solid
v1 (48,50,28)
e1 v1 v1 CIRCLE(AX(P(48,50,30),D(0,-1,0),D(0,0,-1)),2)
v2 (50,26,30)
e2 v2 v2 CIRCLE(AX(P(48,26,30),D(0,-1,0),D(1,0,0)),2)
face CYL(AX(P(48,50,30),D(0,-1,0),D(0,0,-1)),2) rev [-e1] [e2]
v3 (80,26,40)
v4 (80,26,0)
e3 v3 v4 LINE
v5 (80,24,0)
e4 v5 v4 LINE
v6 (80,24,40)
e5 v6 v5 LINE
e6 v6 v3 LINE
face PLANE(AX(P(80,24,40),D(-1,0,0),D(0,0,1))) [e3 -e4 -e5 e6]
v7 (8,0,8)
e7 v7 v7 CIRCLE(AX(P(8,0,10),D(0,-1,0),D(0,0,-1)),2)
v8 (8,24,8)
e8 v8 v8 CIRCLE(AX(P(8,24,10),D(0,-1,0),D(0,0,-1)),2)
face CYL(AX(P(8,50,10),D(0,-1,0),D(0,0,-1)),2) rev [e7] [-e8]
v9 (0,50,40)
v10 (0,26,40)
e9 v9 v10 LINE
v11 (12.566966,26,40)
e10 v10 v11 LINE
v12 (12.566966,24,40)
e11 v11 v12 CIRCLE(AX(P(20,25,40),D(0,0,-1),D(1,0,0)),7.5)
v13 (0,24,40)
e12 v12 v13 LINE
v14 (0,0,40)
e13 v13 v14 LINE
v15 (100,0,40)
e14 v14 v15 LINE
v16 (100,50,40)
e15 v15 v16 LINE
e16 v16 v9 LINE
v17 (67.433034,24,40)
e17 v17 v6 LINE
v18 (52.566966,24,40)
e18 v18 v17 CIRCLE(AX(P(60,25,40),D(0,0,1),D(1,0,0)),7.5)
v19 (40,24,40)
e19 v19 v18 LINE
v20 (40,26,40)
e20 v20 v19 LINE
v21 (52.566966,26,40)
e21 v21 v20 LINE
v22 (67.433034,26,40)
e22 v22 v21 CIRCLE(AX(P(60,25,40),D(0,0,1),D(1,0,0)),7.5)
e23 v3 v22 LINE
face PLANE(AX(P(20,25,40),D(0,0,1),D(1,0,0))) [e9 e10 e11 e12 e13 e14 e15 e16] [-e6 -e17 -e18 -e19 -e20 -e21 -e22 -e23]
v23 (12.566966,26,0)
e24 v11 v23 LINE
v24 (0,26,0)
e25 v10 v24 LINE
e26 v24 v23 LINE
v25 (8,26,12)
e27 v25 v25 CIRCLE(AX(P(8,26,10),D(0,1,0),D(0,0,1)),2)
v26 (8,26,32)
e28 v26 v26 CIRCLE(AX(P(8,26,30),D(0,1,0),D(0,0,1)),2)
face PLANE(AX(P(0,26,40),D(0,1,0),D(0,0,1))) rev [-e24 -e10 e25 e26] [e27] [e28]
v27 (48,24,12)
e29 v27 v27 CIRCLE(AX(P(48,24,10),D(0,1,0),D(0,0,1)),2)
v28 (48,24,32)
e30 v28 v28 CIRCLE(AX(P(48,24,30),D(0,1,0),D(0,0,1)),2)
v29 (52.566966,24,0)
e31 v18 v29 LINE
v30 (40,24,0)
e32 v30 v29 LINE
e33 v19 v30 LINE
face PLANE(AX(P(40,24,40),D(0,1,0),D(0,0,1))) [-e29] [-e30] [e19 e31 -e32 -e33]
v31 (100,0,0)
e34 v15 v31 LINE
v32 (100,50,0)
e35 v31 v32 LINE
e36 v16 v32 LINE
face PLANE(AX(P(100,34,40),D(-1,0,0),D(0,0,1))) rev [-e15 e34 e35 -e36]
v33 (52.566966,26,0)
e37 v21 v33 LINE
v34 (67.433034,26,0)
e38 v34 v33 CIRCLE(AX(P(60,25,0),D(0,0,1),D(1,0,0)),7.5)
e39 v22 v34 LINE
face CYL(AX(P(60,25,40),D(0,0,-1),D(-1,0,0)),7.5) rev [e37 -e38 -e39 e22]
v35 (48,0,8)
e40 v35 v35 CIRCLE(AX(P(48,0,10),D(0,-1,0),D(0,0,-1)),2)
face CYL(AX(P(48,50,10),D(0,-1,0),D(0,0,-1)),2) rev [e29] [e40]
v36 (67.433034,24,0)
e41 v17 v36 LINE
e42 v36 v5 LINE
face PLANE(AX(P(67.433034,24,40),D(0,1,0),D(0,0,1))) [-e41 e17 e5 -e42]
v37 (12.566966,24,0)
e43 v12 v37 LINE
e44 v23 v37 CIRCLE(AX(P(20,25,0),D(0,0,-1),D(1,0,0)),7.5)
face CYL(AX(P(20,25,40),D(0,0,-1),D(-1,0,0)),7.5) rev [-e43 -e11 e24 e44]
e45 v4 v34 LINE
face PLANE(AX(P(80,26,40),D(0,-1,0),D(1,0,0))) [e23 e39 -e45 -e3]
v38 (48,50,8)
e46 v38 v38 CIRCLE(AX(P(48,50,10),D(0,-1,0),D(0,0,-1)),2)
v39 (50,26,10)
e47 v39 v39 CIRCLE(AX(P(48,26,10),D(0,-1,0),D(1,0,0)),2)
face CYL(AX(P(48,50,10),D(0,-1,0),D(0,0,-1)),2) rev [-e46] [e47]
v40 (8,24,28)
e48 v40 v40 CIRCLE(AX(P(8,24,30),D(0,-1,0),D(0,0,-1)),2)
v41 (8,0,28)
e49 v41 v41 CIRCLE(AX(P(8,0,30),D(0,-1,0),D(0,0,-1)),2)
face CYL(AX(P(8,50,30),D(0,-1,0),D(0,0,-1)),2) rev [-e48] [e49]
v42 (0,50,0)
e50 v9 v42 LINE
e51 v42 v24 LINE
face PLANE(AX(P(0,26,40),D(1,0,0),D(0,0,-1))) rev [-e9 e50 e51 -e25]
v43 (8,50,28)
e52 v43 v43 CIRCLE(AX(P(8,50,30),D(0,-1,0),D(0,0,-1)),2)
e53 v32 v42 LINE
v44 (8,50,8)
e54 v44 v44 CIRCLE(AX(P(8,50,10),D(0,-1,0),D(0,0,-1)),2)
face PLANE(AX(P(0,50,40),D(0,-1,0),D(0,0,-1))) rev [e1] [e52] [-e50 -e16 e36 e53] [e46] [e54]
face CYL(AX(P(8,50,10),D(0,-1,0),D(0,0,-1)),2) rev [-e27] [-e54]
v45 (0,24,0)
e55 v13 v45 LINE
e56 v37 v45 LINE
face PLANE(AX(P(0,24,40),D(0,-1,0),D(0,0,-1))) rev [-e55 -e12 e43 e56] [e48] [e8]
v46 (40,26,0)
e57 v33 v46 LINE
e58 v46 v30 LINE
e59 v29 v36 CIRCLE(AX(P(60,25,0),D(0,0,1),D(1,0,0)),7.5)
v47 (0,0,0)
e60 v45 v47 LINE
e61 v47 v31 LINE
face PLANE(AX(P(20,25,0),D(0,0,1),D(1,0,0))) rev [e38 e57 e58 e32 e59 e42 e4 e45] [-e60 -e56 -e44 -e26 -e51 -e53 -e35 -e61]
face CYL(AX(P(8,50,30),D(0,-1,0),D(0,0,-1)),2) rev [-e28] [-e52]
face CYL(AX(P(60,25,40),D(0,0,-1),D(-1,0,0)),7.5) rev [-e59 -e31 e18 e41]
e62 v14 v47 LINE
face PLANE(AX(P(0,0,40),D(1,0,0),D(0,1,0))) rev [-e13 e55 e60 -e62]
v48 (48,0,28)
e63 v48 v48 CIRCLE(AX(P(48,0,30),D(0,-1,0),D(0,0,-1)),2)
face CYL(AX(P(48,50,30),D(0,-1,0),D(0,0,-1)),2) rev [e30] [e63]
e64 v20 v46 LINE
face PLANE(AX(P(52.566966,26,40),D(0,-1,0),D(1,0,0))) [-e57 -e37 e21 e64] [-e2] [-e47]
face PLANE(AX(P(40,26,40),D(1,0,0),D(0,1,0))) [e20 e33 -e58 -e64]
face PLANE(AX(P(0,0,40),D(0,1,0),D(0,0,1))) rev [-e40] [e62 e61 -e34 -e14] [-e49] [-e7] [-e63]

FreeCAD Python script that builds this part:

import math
import FreeCAD as App
import Part
import Sketcher
from FreeCAD import Vector

doc = App.newDocument("Part")
body = doc.addObject("PartDesign::Body", "Body")

# Sketch on XY plane
sketch1 = doc.addObject("Sketcher::SketchObject", "Sketch")
body.addObject(sketch1)
sketch1.AttachmentSupport = (doc.XY_Plane, [""])
sketch1.MapMode = "FlatFace"
sketch1.addGeometry(Part.LineSegment(Vector(0, 0, 0), Vector(100, 0, 0)), False)
sketch1.addGeometry(Part.LineSegment(Vector(100, 0, 0), Vector(100, 50, 0)), False)
sketch1.addGeometry(Part.LineSegment(Vector(100, 50, 0), Vector(0, 50, 0)), False)
sketch1.addGeometry(Part.LineSegment(Vector(0, 50, 0), Vector(0, 26, 0)), False)
sketch1.addGeometry(Part.LineSegment(Vector(0, 26, 0), Vector(12.6, 26, 0)), False)
sketch1.addGeometry(Part.ArcOfCircle(Part.Circle(Vector(20, 25, 0), Vector(0, 0, 1), 7.5), math.radians(-172), math.radians(172)), False)
sketch1.addGeometry(Part.LineSegment(Vector(12.6, 24, 0), Vector(0, 24, 0)), False)
sketch1.addGeometry(Part.LineSegment(Vector(0, 24, 0), Vector(0, 0, 0)), False)
sketch1.addGeometry(Part.LineSegment(Vector(40, 26, 0), Vector(52.6, 26, 0)), False)
sketch1.addGeometry(Part.ArcOfCircle(Part.Circle(Vector(60, 25, 0), Vector(0, 0, 1), 7.5), math.radians(8), math.radians(172)), False)
sketch1.addGeometry(Part.LineSegment(Vector(67.4, 26, 0), Vector(80, 26, 0)), False)
sketch1.addGeometry(Part.LineSegment(Vector(80, 26, 0), Vector(80, 24, 0)), False)
sketch1.addGeometry(Part.LineSegment(Vector(80, 24, 0), Vector(67.4, 24, 0)), False)
sketch1.addGeometry(Part.ArcOfCircle(Part.Circle(Vector(60, 25, 0), Vector(0, 0, 1), 7.5), math.radians(-172), math.radians(-8)), False)
sketch1.addGeometry(Part.LineSegment(Vector(52.6, 24, 0), Vector(40, 24, 0)), False)
sketch1.addGeometry(Part.LineSegment(Vector(40, 24, 0), Vector(40, 26, 0)), False)
sketch1.addConstraint(Sketcher.Constraint("Coincident", 0, 2, 1, 1))
sketch1.addConstraint(Sketcher.Constraint("Coincident", 1, 2, 2, 1))
sketch1.addConstraint(Sketcher.Constraint("Coincident", 2, 2, 3, 1))
sketch1.addConstraint(Sketcher.Constraint("Coincident", 3, 2, 4, 1))
sketch1.addConstraint(Sketcher.Constraint("Coincident", 4, 2, 5, 2))
sketch1.addConstraint(Sketcher.Constraint("Coincident", 5, 1, 6, 1))
sketch1.addConstraint(Sketcher.Constraint("Coincident", 6, 2, 7, 1))
sketch1.addConstraint(Sketcher.Constraint("Coincident", 7, 2, 0, 1))
sketch1.addConstraint(Sketcher.Constraint("Coincident", 8, 2, 9, 2))
sketch1.addConstraint(Sketcher.Constraint("Coincident", 9, 1, 10, 1))
sketch1.addConstraint(Sketcher.Constraint("Coincident", 10, 2, 11, 1))
sketch1.addConstraint(Sketcher.Constraint("Coincident", 11, 2, 12, 1))
sketch1.addConstraint(Sketcher.Constraint("Coincident", 12, 2, 13, 2))
sketch1.addConstraint(Sketcher.Constraint("Coincident", 13, 1, 14, 1))
sketch1.addConstraint(Sketcher.Constraint("Coincident", 14, 2, 15, 1))
sketch1.addConstraint(Sketcher.Constraint("Coincident", 15, 2, 8, 1))
sketch1.addConstraint(Sketcher.Constraint("Horizontal", 0))
sketch1.addConstraint(Sketcher.Constraint("Vertical", 1))
sketch1.addConstraint(Sketcher.Constraint("Horizontal", 2))
sketch1.addConstraint(Sketcher.Constraint("Vertical", 3))
sketch1.addConstraint(Sketcher.Constraint("Horizontal", 4))
sketch1.addConstraint(Sketcher.Constraint("Horizontal", 6))
sketch1.addConstraint(Sketcher.Constraint("Vertical", 7))
sketch1.addConstraint(Sketcher.Constraint("Horizontal", 8))
sketch1.addConstraint(Sketcher.Constraint("Horizontal", 10))
sketch1.addConstraint(Sketcher.Constraint("Vertical", 11))
sketch1.addConstraint(Sketcher.Constraint("Horizontal", 12))
sketch1.addConstraint(Sketcher.Constraint("Horizontal", 14))
sketch1.addConstraint(Sketcher.Constraint("Vertical", 15))
sketch1.addConstraint(Sketcher.Constraint("Coincident", 7, 2, -1, 1))
sketch1.addConstraint(Sketcher.Constraint("Coincident", 13, 3, 9, 3))
sketch1.addConstraint(Sketcher.Constraint("Equal", 5, 9))
sketch1.addConstraint(Sketcher.Constraint("Equal", 9, 13))
sketch1.addConstraint(Sketcher.Constraint("PointOnObject", 2, 2, -2))
sketch1.addConstraint(Sketcher.Constraint("Horizontal", 5, 3, 9, 3))
sketch1.addConstraint(Sketcher.Constraint("Horizontal", 4, 2, 8, 2))
sketch1.addConstraint(Sketcher.Constraint("Horizontal", 8, 2, 9, 1))
sketch1.addConstraint(Sketcher.Constraint("Horizontal", 6, 2, 11, 2))
sketch1.addConstraint(Sketcher.Constraint("Horizontal", 12, 2, 13, 1))
sketch1.addConstraint(Sketcher.Constraint("Vertical", 4, 2, 5, 1))
sketch1.addConstraint(Sketcher.Constraint("Equal", 6, 8))
sketch1.addConstraint(Sketcher.Constraint("Equal", 8, 10))
sketch1.addConstraint(Sketcher.Constraint("Equal", 3, 7))
sketch1.addConstraint(Sketcher.Constraint("Radius", 5, 7.5))
sketch1.addConstraint(Sketcher.Constraint("DistanceX", 0, 1, 0, 2, 100.0))
sketch1.addConstraint(Sketcher.Constraint("DistanceY", 1, 1, 1, 2, 50.0))
sketch1.addConstraint(Sketcher.Constraint("DistanceY", 3, 2, 3, 1, 24.0))
sketch1.addConstraint(Sketcher.Constraint("DistanceX", -1, 1, 5, 3, 20.0))
sketch1.addConstraint(Sketcher.Constraint("DistanceX", -1, 1, 9, 3, 60.0))
pad1 = doc.addObject("PartDesign::Pad", "Pad")
body.addObject(pad1)
pad1.Profile = sketch1
pad1.Length = 40

# Sketch on XZ plane
sketch2 = doc.addObject("Sketcher::SketchObject", "Sketch001")
body.addObject(sketch2)
sketch2.AttachmentSupport = (doc.XZ_Plane, [""])
sketch2.MapMode = "FlatFace"
sketch2.addGeometry(Part.Circle(Vector(8, 30, 0), Vector(0, 0, 1), 2), False)
sketch2.addGeometry(Part.Circle(Vector(8, 10, 0), Vector(0, 0, 1), 2), False)
sketch2.addGeometry(Part.Circle(Vector(48, 30, 0), Vector(0, 0, 1), 2), False)
sketch2.addGeometry(Part.Circle(Vector(48, 10, 0), Vector(0, 0, 1), 2), False)
sketch2.addConstraint(Sketcher.Constraint("Equal", 0, 1))
sketch2.addConstraint(Sketcher.Constraint("Equal", 1, 2))
sketch2.addConstraint(Sketcher.Constraint("Equal", 2, 3))
sketch2.addConstraint(Sketcher.Constraint("Horizontal", 0, 3, 2, 3))
sketch2.addConstraint(Sketcher.Constraint("Horizontal", 1, 3, 3, 3))
sketch2.addConstraint(Sketcher.Constraint("Vertical", 0, 3, 1, 3))
sketch2.addConstraint(Sketcher.Constraint("Vertical", 2, 3, 3, 3))
sketch2.addConstraint(Sketcher.Constraint("Diameter", 0, 4.0))
sketch2.addConstraint(Sketcher.Constraint("DistanceX", -1, 1, 0, 3, 8.0))
sketch2.addConstraint(Sketcher.Constraint("DistanceY", -1, 1, 0, 3, 30.0))
sketch2.addConstraint(Sketcher.Constraint("DistanceY", -1, 1, 1, 3, 10.0))
sketch2.addConstraint(Sketcher.Constraint("DistanceX", -1, 1, 2, 3, 48.0))
pocket1 = doc.addObject("PartDesign::Pocket", "Pocket")
body.addObject(pocket1)
pocket1.Profile = sketch2
pocket1.Length = 50

doc.recompute()
